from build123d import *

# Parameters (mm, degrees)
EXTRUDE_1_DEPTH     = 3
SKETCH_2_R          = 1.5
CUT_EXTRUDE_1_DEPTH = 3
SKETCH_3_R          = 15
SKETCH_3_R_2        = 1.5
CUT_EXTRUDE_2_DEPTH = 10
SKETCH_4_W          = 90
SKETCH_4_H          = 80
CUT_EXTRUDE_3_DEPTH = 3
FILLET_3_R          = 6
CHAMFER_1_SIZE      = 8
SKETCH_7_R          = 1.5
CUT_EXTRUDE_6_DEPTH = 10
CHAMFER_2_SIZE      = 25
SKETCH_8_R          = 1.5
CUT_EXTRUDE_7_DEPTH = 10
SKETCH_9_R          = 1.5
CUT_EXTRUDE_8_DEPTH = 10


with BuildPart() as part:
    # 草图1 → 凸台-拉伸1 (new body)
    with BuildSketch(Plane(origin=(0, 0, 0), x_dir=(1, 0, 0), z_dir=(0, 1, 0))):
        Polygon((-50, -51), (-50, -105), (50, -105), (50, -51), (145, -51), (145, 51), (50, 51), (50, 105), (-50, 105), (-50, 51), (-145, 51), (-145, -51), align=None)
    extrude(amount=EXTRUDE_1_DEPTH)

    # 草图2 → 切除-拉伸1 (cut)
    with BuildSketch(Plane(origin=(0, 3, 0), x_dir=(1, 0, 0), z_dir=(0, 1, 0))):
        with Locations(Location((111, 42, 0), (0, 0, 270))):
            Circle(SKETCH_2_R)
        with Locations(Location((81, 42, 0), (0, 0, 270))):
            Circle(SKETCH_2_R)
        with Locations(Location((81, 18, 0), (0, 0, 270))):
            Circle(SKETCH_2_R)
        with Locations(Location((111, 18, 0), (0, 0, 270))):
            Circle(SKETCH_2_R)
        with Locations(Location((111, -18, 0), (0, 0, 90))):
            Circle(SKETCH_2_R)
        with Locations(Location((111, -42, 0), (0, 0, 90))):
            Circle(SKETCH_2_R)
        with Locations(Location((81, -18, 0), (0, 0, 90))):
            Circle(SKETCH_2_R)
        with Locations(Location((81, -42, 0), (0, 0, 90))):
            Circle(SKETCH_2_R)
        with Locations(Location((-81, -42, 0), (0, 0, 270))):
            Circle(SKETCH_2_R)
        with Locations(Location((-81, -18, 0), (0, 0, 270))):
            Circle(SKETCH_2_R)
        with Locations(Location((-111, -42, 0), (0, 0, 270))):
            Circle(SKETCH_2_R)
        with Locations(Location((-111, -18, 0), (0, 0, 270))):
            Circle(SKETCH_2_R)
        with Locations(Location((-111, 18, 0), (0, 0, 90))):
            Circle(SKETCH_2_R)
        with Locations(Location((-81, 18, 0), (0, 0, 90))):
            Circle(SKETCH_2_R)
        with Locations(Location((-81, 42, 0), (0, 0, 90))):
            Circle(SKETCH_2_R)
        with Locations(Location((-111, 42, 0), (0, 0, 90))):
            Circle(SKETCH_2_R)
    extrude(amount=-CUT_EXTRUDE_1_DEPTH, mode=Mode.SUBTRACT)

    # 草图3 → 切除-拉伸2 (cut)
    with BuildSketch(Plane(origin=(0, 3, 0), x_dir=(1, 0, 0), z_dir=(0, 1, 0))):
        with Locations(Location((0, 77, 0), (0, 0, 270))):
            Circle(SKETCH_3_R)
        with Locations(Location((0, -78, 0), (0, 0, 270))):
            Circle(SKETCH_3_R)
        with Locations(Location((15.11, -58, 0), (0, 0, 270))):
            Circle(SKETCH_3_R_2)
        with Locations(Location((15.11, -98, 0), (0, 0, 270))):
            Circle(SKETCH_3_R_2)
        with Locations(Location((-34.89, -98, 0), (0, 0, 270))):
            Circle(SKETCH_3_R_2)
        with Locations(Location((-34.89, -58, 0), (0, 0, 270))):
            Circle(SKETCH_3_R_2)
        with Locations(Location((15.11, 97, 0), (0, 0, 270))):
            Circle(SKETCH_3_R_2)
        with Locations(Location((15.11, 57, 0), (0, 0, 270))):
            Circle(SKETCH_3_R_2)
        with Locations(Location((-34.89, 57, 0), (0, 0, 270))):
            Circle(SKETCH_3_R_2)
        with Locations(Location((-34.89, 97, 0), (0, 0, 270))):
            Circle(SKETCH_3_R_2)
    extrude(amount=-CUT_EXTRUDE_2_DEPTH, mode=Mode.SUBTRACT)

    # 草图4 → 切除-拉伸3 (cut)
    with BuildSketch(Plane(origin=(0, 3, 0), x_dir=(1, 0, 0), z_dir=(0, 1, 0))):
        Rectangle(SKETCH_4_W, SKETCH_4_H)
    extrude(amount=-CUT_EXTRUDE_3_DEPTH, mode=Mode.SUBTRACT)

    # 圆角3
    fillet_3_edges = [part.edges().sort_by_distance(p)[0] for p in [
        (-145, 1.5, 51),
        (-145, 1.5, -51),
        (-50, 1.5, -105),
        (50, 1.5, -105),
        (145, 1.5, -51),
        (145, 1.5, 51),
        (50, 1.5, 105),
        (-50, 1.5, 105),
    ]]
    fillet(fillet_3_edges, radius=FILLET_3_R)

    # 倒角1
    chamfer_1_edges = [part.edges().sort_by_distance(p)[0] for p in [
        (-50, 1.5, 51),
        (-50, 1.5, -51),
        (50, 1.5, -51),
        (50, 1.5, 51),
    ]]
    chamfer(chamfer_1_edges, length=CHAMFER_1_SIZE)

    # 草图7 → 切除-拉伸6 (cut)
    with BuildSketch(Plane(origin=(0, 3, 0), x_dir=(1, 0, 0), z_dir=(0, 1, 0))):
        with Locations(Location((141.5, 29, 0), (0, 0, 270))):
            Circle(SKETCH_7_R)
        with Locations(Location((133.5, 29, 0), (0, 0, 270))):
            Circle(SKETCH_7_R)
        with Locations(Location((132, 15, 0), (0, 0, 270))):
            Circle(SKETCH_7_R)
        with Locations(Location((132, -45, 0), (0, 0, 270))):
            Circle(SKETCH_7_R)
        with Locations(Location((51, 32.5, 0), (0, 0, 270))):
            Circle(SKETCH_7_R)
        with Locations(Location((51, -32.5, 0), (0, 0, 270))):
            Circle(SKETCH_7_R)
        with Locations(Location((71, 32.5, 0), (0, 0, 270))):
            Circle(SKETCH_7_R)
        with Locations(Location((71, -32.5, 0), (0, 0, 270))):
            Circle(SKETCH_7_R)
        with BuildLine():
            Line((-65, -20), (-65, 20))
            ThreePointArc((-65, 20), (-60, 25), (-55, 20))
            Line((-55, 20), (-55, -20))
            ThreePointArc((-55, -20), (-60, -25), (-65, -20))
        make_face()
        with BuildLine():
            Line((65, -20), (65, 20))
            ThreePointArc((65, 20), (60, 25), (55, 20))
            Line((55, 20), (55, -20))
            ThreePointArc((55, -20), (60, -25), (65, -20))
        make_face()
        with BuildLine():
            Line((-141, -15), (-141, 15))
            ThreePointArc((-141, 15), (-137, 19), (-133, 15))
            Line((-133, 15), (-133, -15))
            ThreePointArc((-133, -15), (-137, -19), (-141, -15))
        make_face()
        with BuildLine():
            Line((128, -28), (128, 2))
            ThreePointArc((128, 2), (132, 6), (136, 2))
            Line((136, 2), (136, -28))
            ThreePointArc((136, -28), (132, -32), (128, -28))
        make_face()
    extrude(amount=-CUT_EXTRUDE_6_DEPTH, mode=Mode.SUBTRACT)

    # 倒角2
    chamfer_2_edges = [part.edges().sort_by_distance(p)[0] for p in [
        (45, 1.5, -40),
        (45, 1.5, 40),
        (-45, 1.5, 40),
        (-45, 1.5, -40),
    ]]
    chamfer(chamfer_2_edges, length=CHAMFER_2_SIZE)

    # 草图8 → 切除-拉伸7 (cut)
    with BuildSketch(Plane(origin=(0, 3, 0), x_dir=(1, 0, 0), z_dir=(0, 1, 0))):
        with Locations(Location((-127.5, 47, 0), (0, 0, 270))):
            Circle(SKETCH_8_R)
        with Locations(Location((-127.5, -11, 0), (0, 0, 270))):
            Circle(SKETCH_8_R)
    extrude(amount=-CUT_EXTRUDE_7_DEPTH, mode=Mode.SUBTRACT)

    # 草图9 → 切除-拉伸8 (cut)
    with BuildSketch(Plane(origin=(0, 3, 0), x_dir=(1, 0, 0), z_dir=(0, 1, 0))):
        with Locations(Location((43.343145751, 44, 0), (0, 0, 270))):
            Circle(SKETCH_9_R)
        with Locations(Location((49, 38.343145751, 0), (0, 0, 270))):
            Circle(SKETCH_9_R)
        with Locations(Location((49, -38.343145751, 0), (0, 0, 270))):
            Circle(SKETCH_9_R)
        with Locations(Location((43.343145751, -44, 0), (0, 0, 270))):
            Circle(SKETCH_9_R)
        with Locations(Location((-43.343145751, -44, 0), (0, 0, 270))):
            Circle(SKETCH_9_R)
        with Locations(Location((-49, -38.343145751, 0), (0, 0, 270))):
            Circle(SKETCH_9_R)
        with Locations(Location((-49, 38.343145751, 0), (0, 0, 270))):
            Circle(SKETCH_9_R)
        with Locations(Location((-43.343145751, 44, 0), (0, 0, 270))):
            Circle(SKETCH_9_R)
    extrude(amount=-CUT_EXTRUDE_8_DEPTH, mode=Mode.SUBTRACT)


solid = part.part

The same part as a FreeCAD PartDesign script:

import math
import FreeCAD as App
import Part
import Sketcher


def edges_at(feature, points):
    """Names of the edges that pass closest to the given points."""
    edges = feature.Shape.Edges
    near = lambda p: min(range(len(edges)), key=lambda i: edges[i].distToShape(Part.Vertex(*p))[0])
    return sorted({f"Edge{near(p) + 1}" for p in points})

doc = App.newDocument("Part")
body = doc.addObject("PartDesign::Body", "Body")

# Sketch on XZ plane
sketch1 = doc.addObject("Sketcher::SketchObject", "Sketch")
body.addObject(sketch1)
sketch1.AttachmentSupport = (doc.XZ_Plane, [""])
sketch1.MapMode = "FlatFace"
sketch1.addGeometry([
    Part.LineSegment(App.Vector(-50, 51, 0), App.Vector(-50, 105, 0)),  # 0
    Part.LineSegment(App.Vector(-50, 105, 0), App.Vector(50, 105, 0)),  # 1
    Part.LineSegment(App.Vector(50, 105, 0), App.Vector(50, 51, 0)),  # 2
    Part.LineSegment(App.Vector(50, 51, 0), App.Vector(145, 51, 0)),  # 3
    Part.LineSegment(App.Vector(145, 51, 0), App.Vector(145, -51, 0)),  # 4
    Part.LineSegment(App.Vector(145, -51, 0), App.Vector(50, -51, 0)),  # 5
    Part.LineSegment(App.Vector(50, -51, 0), App.Vector(50, -105, 0)),  # 6
    Part.LineSegment(App.Vector(50, -105, 0), App.Vector(-50, -105, 0)),  # 7
    Part.LineSegment(App.Vector(-50, -105, 0), App.Vector(-50, -51, 0)),  # 8
    Part.LineSegment(App.Vector(-50, -51, 0), App.Vector(-145, -51, 0)),  # 9
    Part.LineSegment(App.Vector(-145, -51, 0), App.Vector(-145, 51, 0)),  # 10
    Part.LineSegment(App.Vector(-145, 51, 0), App.Vector(-50, 51, 0)),  # 11
], False)
sketch1.addConstraint([
    Sketcher.Constraint("Coincident", 0, 2, 1, 1),
    Sketcher.Constraint("Coincident", 1, 2, 2, 1),
    Sketcher.Constraint("Coincident", 2, 2, 3, 1),
    Sketcher.Constraint("Coincident", 3, 2, 4, 1),
    Sketcher.Constraint("Coincident", 4, 2, 5, 1),
    Sketcher.Constraint("Coincident", 5, 2, 6, 1),
    Sketcher.Constraint("Coincident", 6, 2, 7, 1),
    Sketcher.Constraint("Coincident", 7, 2, 8, 1),
    Sketcher.Constraint("Coincident", 8, 2, 9, 1),
    Sketcher.Constraint("Coincident", 9, 2, 10, 1),
    Sketcher.Constraint("Coincident", 10, 2, 11, 1),
    Sketcher.Constraint("Coincident", 11, 2, 0, 1),
    Sketcher.Constraint("Vertical", 0),
    Sketcher.Constraint("Horizontal", 1),
    Sketcher.Constraint("Vertical", 2),
    Sketcher.Constraint("Horizontal", 3),
    Sketcher.Constraint("Vertical", 4),
    Sketcher.Constraint("Horizontal", 5),
    Sketcher.Constraint("Vertical", 6),
    Sketcher.Constraint("Horizontal", 7),
    Sketcher.Constraint("Vertical", 8),
    Sketcher.Constraint("Horizontal", 9),
    Sketcher.Constraint("Vertical", 10),
    Sketcher.Constraint("Horizontal", 11),
    Sketcher.Constraint("Symmetric", 0, 2, 6, 2, -1, 1),
    Sketcher.Constraint("Symmetric", 2, 2, 8, 2, -1, 1),
    Sketcher.Constraint("Symmetric", 4, 2, 10, 2, -1, 1),
    Sketcher.Constraint("Symmetric", 5, 2, 8, 2, -2),
    Sketcher.Constraint("DistanceX", 1, 1, 1, 2, 100.0),
    Sketcher.Constraint("DistanceX", 3, 1, 3, 2, 95.0),
    Sketcher.Constraint("DistanceY", 0, 1, 0, 2, 54.0),
    Sketcher.Constraint("DistanceY", 4, 2, 4, 1, 102.0),
])
pad1 = doc.addObject("PartDesign::Pad", "Pad")
body.addObject(pad1)
pad1.Profile = sketch1
pad1.Length = 3
pad1.Reversed = True

# Sketch on XZ plane
sketch2 = doc.addObject("Sketcher::SketchObject", "Sketch001")
body.addObject(sketch2)
sketch2.AttachmentSupport = (doc.XZ_Plane, [""])
sketch2.MapMode = "FlatFace"
sketch2.AttachmentOffset = App.Placement(App.Vector(0, 0, -3), App.Rotation())
sketch2.addGeometry([
    Part.Circle(App.Vector(111, -42, 0), App.Vector(0, 0, 1), 1.5),  # 0
    Part.Circle(App.Vector(81, -42, 0), App.Vector(0, 0, 1), 1.5),  # 1
    Part.Circle(App.Vector(81, -18, 0), App.Vector(0, 0, 1), 1.5),  # 2
    Part.Circle(App.Vector(111, -18, 0), App.Vector(0, 0, 1), 1.5),  # 3
    Part.Circle(App.Vector(111, 18, 0), App.Vector(0, 0, 1), 1.5),  # 4
    Part.Circle(App.Vector(111, 42, 0), App.Vector(0, 0, 1), 1.5),  # 5
    Part.Circle(App.Vector(81, 18, 0), App.Vector(0, 0, 1), 1.5),  # 6
    Part.Circle(App.Vector(81, 42, 0), App.Vector(0, 0, 1), 1.5),  # 7
    Part.Circle(App.Vector(-81, 42, 0), App.Vector(0, 0, 1), 1.5),  # 8
    Part.Circle(App.Vector(-81, 18, 0), App.Vector(0, 0, 1), 1.5),  # 9
    Part.Circle(App.Vector(-111, 42, 0), App.Vector(0, 0, 1), 1.5),  # 10
    Part.Circle(App.Vector(-111, 18, 0), App.Vector(0, 0, 1), 1.5),  # 11
    Part.Circle(App.Vector(-111, -18, 0), App.Vector(0, 0, 1), 1.5),  # 12
    Part.Circle(App.Vector(-81, -18, 0), App.Vector(0, 0, 1), 1.5),  # 13
    Part.Circle(App.Vector(-81, -42, 0), App.Vector(0, 0, 1), 1.5),  # 14
    Part.Circle(App.Vector(-111, -42, 0), App.Vector(0, 0, 1), 1.5),  # 15
], False)
sketch2.addConstraint([
    Sketcher.Constraint("Equal", 0, 1),
    Sketcher.Constraint("Equal", 1, 2),
    Sketcher.Constraint("Equal", 2, 3),
    Sketcher.Constraint("Equal", 3, 4),
    Sketcher.Constraint("Equal", 4, 5),
    Sketcher.Constraint("Equal", 5, 6),
    Sketcher.Constraint("Equal", 6, 7),
    Sketcher.Constraint("Equal", 7, 8),
    Sketcher.Constraint("Equal", 8, 9),
    Sketcher.Constraint("Equal", 9, 10),
    Sketcher.Constraint("Equal", 10, 11),
    Sketcher.Constraint("Equal", 11, 12),
    Sketcher.Constraint("Equal", 12, 13),
    Sketcher.Constraint("Equal", 13, 14),
    Sketcher.Constraint("Equal", 14, 15),
    Sketcher.Constraint("Symmetric", 1, 3, 8, 3, -1, 1),
    Sketcher.Constraint("Symmetric", 2, 3, 9, 3, -1, 1),
    Sketcher.Constraint("Symmetric", 0, 3, 10, 3, -1, 1),
    Sketcher.Constraint("Symmetric", 3, 3, 11, 3, -1, 1),
    Sketcher.Constraint("Symmetric", 4, 3, 12, 3, -1, 1),
    Sketcher.Constraint("Symmetric", 6, 3, 13, 3, -1, 1),
    Sketcher.Constraint("Symmetric", 7, 3, 14, 3, -1, 1),
    Sketcher.Constraint("Symmetric", 5, 3, 15, 3, -1, 1),
    Sketcher.Constraint("Symmetric", 7, 3, 8, 3, -2),
    Sketcher.Constraint("Symmetric", 6, 3, 9, 3, -2),
    Sketcher.Constraint("Symmetric", 5, 3, 10, 3, -2),
    Sketcher.Constraint("Symmetric", 4, 3, 11, 3, -2),
    Sketcher.Constraint("Horizontal", 0, 3, 1, 3),
    Sketcher.Constraint("Horizontal", 2, 3, 3, 3),
    Sketcher.Constraint("Vertical", 1, 3, 2, 3),
    Sketcher.Constraint("Vertical", 0, 3, 3, 3),
    Sketcher.Constraint("Diameter", 0, 3.0),
    Sketcher.Constraint("DistanceX", -1, 1, 0, 3, 111.0),
    Sketcher.Constraint("DistanceY", 0, 3, -1, 1, 42.0),
    Sketcher.Constraint("DistanceX", -1, 1, 1, 3, 81.0),
    Sketcher.Constraint("DistanceY", 2, 3, -1, 1, 18.0),
])
pocket1 = doc.addObject("PartDesign::Pocket", "Pocket")
body.addObject(pocket1)
pocket1.Profile = sketch2
pocket1.Length = 3
pocket1.Reversed = True

# Sketch on XZ plane
sketch3 = doc.addObject("Sketcher::SketchObject", "Sketch002")
body.addObject(sketch3)
sketch3.AttachmentSupport = (doc.XZ_Plane, [""])
sketch3.MapMode = "FlatFace"
sketch3.AttachmentOffset = App.Placement(App.Vector(0, 0, -3), App.Rotation())
sketch3.addGeometry([
    Part.Circle(App.Vector(0, -77, 0), App.Vector(0, 0, 1), 15),  # 0
    Part.Circle(App.Vector(0, 78, 0), App.Vector(0, 0, 1), 15),  # 1
    Part.Circle(App.Vector(15.1, 58, 0), App.Vector(0, 0, 1), 1.5),  # 2
    Part.Circle(App.Vector(15.1, 98, 0), App.Vector(0, 0, 1), 1.5),  # 3
    Part.Circle(App.Vector(-34.9, 98, 0), App.Vector(0, 0, 1), 1.5),  # 4
    Part.Circle(App.Vector(-34.9, 58, 0), App.Vector(0, 0, 1), 1.5),  # 5
    Part.Circle(App.Vector(15.1, -97, 0), App.Vector(0, 0, 1), 1.5),  # 6
    Part.Circle(App.Vector(15.1, -57, 0), App.Vector(0, 0, 1), 1.5),  # 7
    Part.Circle(App.Vector(-34.9, -57, 0), App.Vector(0, 0, 1), 1.5),  # 8
    Part.Circle(App.Vector(-34.9, -97, 0), App.Vector(0, 0, 1), 1.5),  # 9
], False)
sketch3.addConstraint([
    Sketcher.Constraint("Equal", 0, 1),
    Sketcher.Constraint("Equal", 2, 3),
    Sketcher.Constraint("Equal", 3, 4),
    Sketcher.Constraint("Equal", 4, 5),
    Sketcher.Constraint("Equal", 5, 6),
    Sketcher.Constraint("Equal", 6, 7),
    Sketcher.Constraint("Equal", 7, 8),
    Sketcher.Constraint("Equal", 8, 9),
    Sketcher.Constraint("PointOnObject", 0, 3, -2),
    Sketcher.Constraint("PointOnObject", 1, 3, -2),
    Sketcher.Constraint("Horizontal", 3, 3, 4, 3),
    Sketcher.Constraint("Horizontal", 2, 3, 5, 3),
    Sketcher.Constraint("Horizontal", 7, 3, 8, 3),
    Sketcher.Constraint("Horizontal", 6, 3, 9, 3),
    Sketcher.Constraint("Vertical", 2, 3, 3, 3),
    Sketcher.Constraint("Vertical", 4, 3, 5, 3),
    Sketcher.Constraint("Vertical", 3, 3, 6, 3),
    Sketcher.Constraint("Vertical", 6, 3, 7, 3),
    Sketcher.Constraint("Vertical", 5, 3, 8, 3),
    Sketcher.Constraint("Vertical", 8, 3, 9, 3),
    Sketcher.Constraint("Diameter", 0, 30.0),
    Sketcher.Constraint("Diameter", 2, 3.0),
    Sketcher.Constraint("DistanceY", 0, 3, -1, 1, 77.0),
    Sketcher.Constraint("DistanceY", -1, 1, 1, 3, 78.0),
    Sketcher.Constraint("DistanceY", -1, 1, 2, 3, 58.0),
    Sketcher.Constraint("DistanceY", -1, 1, 3, 3, 98.0),
    Sketcher.Constraint("DistanceY", 6, 3, -1, 1, 97.0),
    Sketcher.Constraint("DistanceY", 7, 3, -1, 1, 57.0),
    Sketcher.Constraint("DistanceX", 4, 3, 3, 3, 50.0),
    Sketcher.Constraint("DistanceX", -1, 1, 2, 3, 15.11),
])
pocket2 = doc.addObject("PartDesign::Pocket", "Pocket001")
body.addObject(pocket2)
pocket2.Profile = sketch3
pocket2.Length = 10
pocket2.Reversed = True

# Sketch on XZ plane
sketch4 = doc.addObject("Sketcher::SketchObject", "Sketch003")
body.addObject(sketch4)
sketch4.AttachmentSupport = (doc.XZ_Plane, [""])
sketch4.MapMode = "FlatFace"
sketch4.AttachmentOffset = App.Placement(App.Vector(0, 0, -3), App.Rotation())
sketch4.addGeometry([
    Part.LineSegment(App.Vector(-45, -40, 0), App.Vector(-45, 40, 0)),
    Part.LineSegment(App.Vector(-45, 40, 0), App.Vector(45, 40, 0)),
    Part.LineSegment(App.Vector(45, 40, 0), App.Vector(45, -40, 0)),
    Part.LineSegment(App.Vector(45, -40, 0), App.Vector(-45, -40, 0)),
], False)
sketch4.addConstraint([
    Sketcher.Constraint("Coincident", 0, 2, 1, 1),
    Sketcher.Constraint("Coincident", 1, 2, 2, 1),
    Sketcher.Constraint("Coincident", 2, 2, 3, 1),
    Sketcher.Constraint("Coincident", 3, 2, 0, 1),
    Sketcher.Constraint("Vertical", 0),
    Sketcher.Constraint("Horizontal", 1),
    Sketcher.Constraint("Vertical", 2),
    Sketcher.Constraint("Horizontal", 3),
    Sketcher.Constraint("Symmetric", 0, 2, 2, 2, -1, 1),
    Sketcher.Constraint("DistanceX", 1, 1, 1, 2, 90.0),
    Sketcher.Constraint("DistanceY", 0, 1, 0, 2, 80.0),
])
pocket3 = doc.addObject("PartDesign::Pocket", "Pocket002")
body.addObject(pocket3)
pocket3.Profile = sketch4
pocket3.Length = 3
pocket3.Reversed = True
doc.recompute()

fillet = doc.addObject("PartDesign::Fillet", "Fillet")
body.addObject(fillet)
fillet.Base = (pocket3, edges_at(pocket3, [
    (-145, 1.5, 51),
    (-145, 1.5, -51),
    (-50, 1.5, -105),
    (50, 1.5, -105),
    (145, 1.5, -51),
    (145, 1.5, 51),
    (50, 1.5, 105),
    (-50, 1.5, 105),
]))
fillet.Radius = 6
doc.recompute()

chamfer = doc.addObject("PartDesign::Chamfer", "Chamfer")
body.addObject(chamfer)
chamfer.Base = (fillet, edges_at(fillet, [
    (-50, 1.5, 51),
    (-50, 1.5, -51),
    (50, 1.5, -51),
    (50, 1.5, 51),
]))
chamfer.Size = 8

# Sketch on XZ plane
sketch5 = doc.addObject("Sketcher::SketchObject", "Sketch004")
body.addObject(sketch5)
sketch5.AttachmentSupport = (doc.XZ_Plane, [""])
sketch5.MapMode = "FlatFace"
sketch5.AttachmentOffset = App.Placement(App.Vector(0, 0, -3), App.Rotation())
sketch5.addGeometry([
    Part.Circle(App.Vector(141.5, -29, 0), App.Vector(0, 0, 1), 1.5),  # 0
    Part.Circle(App.Vector(133.5, -29, 0), App.Vector(0, 0, 1), 1.5),  # 1
    Part.Circle(App.Vector(132, -15, 0), App.Vector(0, 0, 1), 1.5),  # 2
    Part.Circle(App.Vector(132, 45, 0), App.Vector(0, 0, 1), 1.5),  # 3
    Part.Circle(App.Vector(51, -32.5, 0), App.Vector(0, 0, 1), 1.5),  # 4
    Part.Circle(App.Vector(51, 32.5, 0), App.Vector(0, 0, 1), 1.5),  # 5
    Part.Circle(App.Vector(71, -32.5, 0), App.Vector(0, 0, 1), 1.5),  # 6
    Part.Circle(App.Vector(71, 32.5, 0), App.Vector(0, 0, 1), 1.5),  # 7
    Part.LineSegment(App.Vector(-65, -20, 0), App.Vector(-65, 20, 0)),  # 8
    Part.ArcOfCircle(Part.Circle(App.Vector(-60, 20, 0), App.Vector(0, 0, 1), 5), math.radians(0), math.radians(180)),  # 9
    Part.LineSegment(App.Vector(-55, 20, 0), App.Vector(-55, -20, 0)),  # 10
    Part.ArcOfCircle(Part.Circle(App.Vector(-60, -20, 0), App.Vector(0, 0, 1), 5), math.radians(180), math.radians(360)),  # 11
    Part.LineSegment(App.Vector(65, 20, 0), App.Vector(65, -20, 0)),  # 12
    Part.ArcOfCircle(Part.Circle(App.Vector(60, -20, 0), App.Vector(0, 0, 1), 5), math.radians(180), math.radians(360)),  # 13
    Part.LineSegment(App.Vector(55, -20, 0), App.Vector(55, 20, 0)),  # 14
    Part.ArcOfCircle(Part.Circle(App.Vector(60, 20, 0), App.Vector(0, 0, 1), 5), math.radians(0), math.radians(180)),  # 15
    Part.LineSegment(App.Vector(-141, -15, 0), App.Vector(-141, 15, 0)),  # 16
    Part.ArcOfCircle(Part.Circle(App.Vector(-137, 15, 0), App.Vector(0, 0, 1), 4), math.radians(0), math.radians(180)),  # 17
    Part.LineSegment(App.Vector(-133, 15, 0), App.Vector(-133, -15, 0)),  # 18
    Part.ArcOfCircle(Part.Circle(App.Vector(-137, -15, 0), App.Vector(0, 0, 1), 4), math.radians(180), math.radians(360)),  # 19
    Part.LineSegment(App.Vector(128, -2, 0), App.Vector(128, 28, 0)),  # 20
    Part.ArcOfCircle(Part.Circle(App.Vector(132, 28, 0), App.Vector(0, 0, 1), 4), math.radians(0), math.radians(180)),  # 21
    Part.LineSegment(App.Vector(136, 28, 0), App.Vector(136, -2, 0)),  # 22
    Part.ArcOfCircle(Part.Circle(App.Vector(132, -2, 0), App.Vector(0, 0, 1), 4), math.radians(180), math.radians(360)),  # 23
], False)
sketch5.addConstraint([
    Sketcher.Constraint("Tangent", 8, 2, 9, 2),
    Sketcher.Constraint("Tangent", 9, 1, 10, 1),
    Sketcher.Constraint("Tangent", 10, 2, 11, 2),
    Sketcher.Constraint("Tangent", 11, 1, 8, 1),
    Sketcher.Constraint("Tangent", 12, 2, 13, 2),
    Sketcher.Constraint("Tangent", 13, 1, 14, 1),
    Sketcher.Constraint("Tangent", 14, 2, 15, 2),
    Sketcher.Constraint("Tangent", 15, 1, 12, 1),
    Sketcher.Constraint("Tangent", 16, 2, 17, 2),
    Sketcher.Constraint("Tangent", 17, 1, 18, 1),
    Sketcher.Constraint("Tangent", 18, 2, 19, 2),
    Sketcher.Constraint("Tangent", 19, 1, 16, 1),
    Sketcher.Constraint("Tangent", 20, 2, 21, 2),
    Sketcher.Constraint("Tangent", 21, 1, 22, 1),
    Sketcher.Constraint("Tangent", 22, 2, 23, 2),
    Sketcher.Constraint("Tangent", 23, 1, 20, 1),
    Sketcher.Constraint("Vertical", 8),
    Sketcher.Constraint("Vertical", 10),
    Sketcher.Constraint("Vertical", 12),
    Sketcher.Constraint("Vertical", 14),
    Sketcher.Constraint("Vertical", 16),
    Sketcher.Constraint("Vertical", 18),
    Sketcher.Constraint("Vertical", 20),
    Sketcher.Constraint("Vertical", 22),
    Sketcher.Constraint("Equal", 0, 1),
    Sketcher.Constraint("Equal", 1, 2),
    Sketcher.Constraint("Equal", 2, 3),
    Sketcher.Constraint("Equal", 3, 4),
    Sketcher.Constraint("Equal", 4, 5),
    Sketcher.Constraint("Equal", 5, 6),
    Sketcher.Constraint("Equal", 6, 7),
    Sketcher.Constraint("Equal", 11, 13),
    Sketcher.Constraint("Equal", 19, 21),
    Sketcher.Constraint("Symmetric", 9, 3, 13, 3, -1, 1),
    Sketcher.Constraint("Symmetric", 4, 3, 5, 3, -1),
    Sketcher.Constraint("Symmetric", 6, 3, 7, 3, -1),
    Sketcher.Constraint("Horizontal", 0, 3, 1, 3),
    Sketcher.Constraint("Horizontal", 4, 3, 6, 3),
    Sketcher.Constraint("Horizontal", 11, 3, 13, 3),
    Sketcher.Constraint("Horizontal", 9, 3, 15, 3),
    Sketcher.Constraint("Horizontal", 2, 3, 19, 3),
    Sketcher.Constraint("Vertical", 2, 3, 3, 3),
    Sketcher.Constraint("Vertical", 3, 3, 21, 3),
    Sketcher.Constraint("Equal", 18, 20),
    Sketcher.Constraint("Diameter", 0, 3.0),
    Sketcher.Constraint("Radius", 9, 5.0),
    Sketcher.Constraint("Radius", 17, 4.0),
    Sketcher.Constraint("DistanceY", 8, 1, 8, 2, 40.0),
    Sketcher.Constraint("DistanceY", 16, 1, 16, 2, 30.0),
    Sketcher.Constraint("DistanceY", 0, 3, -1, 1, 29.0),
    Sketcher.Constraint("DistanceX", -1, 1, 2, 3, 132.0),
    Sketcher.Constraint("DistanceY", 2, 3, -1, 1, 15.0),
    Sketcher.Constraint("DistanceY", -1, 1, 3, 3, 45.0),
    Sketcher.Constraint("DistanceX", -1, 1, 4, 3, 51.0),
    Sketcher.Constraint("DistanceX", -1, 1, 6, 3, 71.0),
    Sketcher.Constraint("DistanceX", 9, 3, -1, 1, 60.0),
    Sketcher.Constraint("DistanceX", 17, 3, -1, 1, 137.0),
    Sketcher.Constraint("DistanceY", -1, 1, 21, 3, 28.0),
    Sketcher.Constraint("DistanceX", 1, 3, 0, 3, 8.0),
    Sketcher.Constraint("DistanceY", 4, 3, 5, 3, 65.0),
    Sketcher.Constraint("DistanceX", -1, 1, 0, 3, 141.5),
])
pocket4 = doc.addObject("PartDesign::Pocket", "Pocket003")
body.addObject(pocket4)
pocket4.Profile = sketch5
pocket4.Length = 10
pocket4.Reversed = True
doc.recompute()

chamfer2 = doc.addObject("PartDesign::Chamfer", "Chamfer001")
body.addObject(chamfer2)
chamfer2.Base = (pocket4, edges_at(pocket4, [
    (45, 1.5, -40),
    (45, 1.5, 40),
    (-45, 1.5, 40),
    (-45, 1.5, -40),
]))
chamfer2.Size = 25

# Sketch on XZ plane
sketch6 = doc.addObject("Sketcher::SketchObject", "Sketch005")
body.addObject(sketch6)
sketch6.AttachmentSupport = (doc.XZ_Plane, [""])
sketch6.MapMode = "FlatFace"
sketch6.AttachmentOffset = App.Placement(App.Vector(0, 0, -3), App.Rotation())
sketch6.addGeometry([
    Part.Circle(App.Vector(-127.5, -47, 0), App.Vector(0, 0, 1), 1.5),
    Part.Circle(App.Vector(-127.5, 11, 0), App.Vector(0, 0, 1), 1.5),
], False)
sketch6.addConstraint([
    Sketcher.Constraint("Equal", 0, 1),
    Sketcher.Constraint("Vertical", 0, 3, 1, 3),
    Sketcher.Constraint("Diameter", 0, 3.0),
    Sketcher.Constraint("DistanceY", 0, 3, -1, 1, 47.0),
    Sketcher.Constraint("DistanceY", -1, 1, 1, 3, 11.0),
    Sketcher.Constraint("DistanceX", 0, 3, -1, 1, 127.5),
])
pocket5 = doc.addObject("PartDesign::Pocket", "Pocket004")
body.addObject(pocket5)
pocket5.Profile = sketch6
pocket5.Length = 10
pocket5.Reversed = True

# Sketch on XZ plane
sketch7 = doc.addObject("Sketcher::SketchObject", "Sketch006")
body.addObject(sketch7)
sketch7.AttachmentSupport = (doc.XZ_Plane, [""])
sketch7.MapMode = "FlatFace"
sketch7.AttachmentOffset = App.Placement(App.Vector(0, 0, -3), App.Rotation())
sketch7.addGeometry([
    Part.Circle(App.Vector(43.3, -44, 0), App.Vector(0, 0, 1), 1.5),  # 0
    Part.Circle(App.Vector(49, -38.3, 0), App.Vector(0, 0, 1), 1.5),  # 1
    Part.Circle(App.Vector(49, 38.3, 0), App.Vector(0, 0, 1), 1.5),  # 2
    Part.Circle(App.Vector(43.3, 44, 0), App.Vector(0, 0, 1), 1.5),  # 3
    Part.Circle(App.Vector(-43.3, 44, 0), App.Vector(0, 0, 1), 1.5),  # 4
    Part.Circle(App.Vector(-49, 38.3, 0), App.Vector(0, 0, 1), 1.5),  # 5
    Part.Circle(App.Vector(-49, -38.3, 0), App.Vector(0, 0, 1), 1.5),  # 6
    Part.Circle(App.Vector(-43.3, -44, 0), App.Vector(0, 0, 1), 1.5),  # 7
], False)
sketch7.addConstraint([
    Sketcher.Constraint("Equal", 0, 1),
    Sketcher.Constraint("Equal", 1, 2),
    Sketcher.Constraint("Equal", 2, 3),
    Sketcher.Constraint("Equal", 3, 4),
    Sketcher.Constraint("Equal", 4, 5),
    Sketcher.Constraint("Equal", 5, 6),
    Sketcher.Constraint("Equal", 6, 7),
    Sketcher.Constraint("Symmetric", 0, 3, 4, 3, -1, 1),
    Sketcher.Constraint("Symmetric", 1, 3, 5, 3, -1, 1),
    Sketcher.Constraint("Symmetric", 2, 3, 6, 3, -1, 1),
    Sketcher.Constraint("Symmetric", 3, 3, 7, 3, -1, 1),
    Sketcher.Constraint("Symmetric", 3, 3, 4, 3, -2),
    Sketcher.Constraint("Symmetric", 2, 3, 5, 3, -2),
    Sketcher.Constraint("Diameter", 0, 3.0),
    Sketcher.Constraint("DistanceY", 0, 3, -1, 1, 44.0),
    Sketcher.Constraint("DistanceX", -1, 1, 1, 3, 49.0),
    Sketcher.Constraint("DistanceY", 1, 3, 2, 3, 76.686292),
    Sketcher.Constraint("DistanceX", 4, 3, 3, 3, 86.686292),
])
pocket6 = doc.addObject("PartDesign::Pocket", "Pocket005")
body.addObject(pocket6)
pocket6.Profile = sketch7
pocket6.Length = 10
pocket6.Reversed = True

doc.recompute()
